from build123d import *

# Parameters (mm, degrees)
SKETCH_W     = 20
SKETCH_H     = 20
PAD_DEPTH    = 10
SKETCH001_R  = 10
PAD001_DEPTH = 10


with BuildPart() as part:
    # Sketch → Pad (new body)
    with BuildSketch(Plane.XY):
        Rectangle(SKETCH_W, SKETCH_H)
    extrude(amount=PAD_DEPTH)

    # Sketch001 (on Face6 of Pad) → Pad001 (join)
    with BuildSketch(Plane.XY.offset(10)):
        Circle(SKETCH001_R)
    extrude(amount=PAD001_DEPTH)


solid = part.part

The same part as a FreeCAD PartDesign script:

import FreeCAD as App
import Part
import Sketcher

V = App.Vector
Q = App.Units.Quantity

doc = App.newDocument("Part")
body = doc.addObject("PartDesign::Body", "Body")

# Sketch on XY plane
sketch1 = body.newObject("Sketcher::SketchObject", "Sketch")
sketch1.AttachmentSupport = (doc.getObject("XY_Plane"), [""])
sketch1.MapMode = "FlatFace"
sketch1.addGeometry([
    Part.LineSegment(V(-10, 10, 0), V(-10, -10, 0)),
    Part.LineSegment(V(-10, -10, 0), V(10, -10, 0)),
    Part.LineSegment(V(10, -10, 0), V(10, 10, 0)),
    Part.LineSegment(V(10, 10, 0), V(-10, 10, 0)),
], False)
sketch1.addConstraint([
    Sketcher.Constraint("Coincident", 0, 2, 1, 1),
    Sketcher.Constraint("Coincident", 1, 2, 2, 1),
    Sketcher.Constraint("Coincident", 2, 2, 3, 1),
    Sketcher.Constraint("Coincident", 3, 2, 0, 1),
    Sketcher.Constraint("Vertical", 0),
    Sketcher.Constraint("Horizontal", 1),
    Sketcher.Constraint("Vertical", 2),
    Sketcher.Constraint("Horizontal", 3),
    Sketcher.Constraint("Symmetric", 0, 2, 2, 2, -1, 1),
    Sketcher.Constraint("Equal", 3, 0),
    Sketcher.Constraint("DistanceX", 1, 1, 1, 2, Q("20 mm")),
])
pad1 = body.newObject("PartDesign::Pad", "Pad")
pad1.Profile = sketch1
pad1.Length = 10

# Sketch on XY plane
sketch2 = body.newObject("Sketcher::SketchObject", "Sketch001")
sketch2.AttachmentSupport = (doc.getObject("XY_Plane"), [""])
sketch2.MapMode = "FlatFace"
sketch2.AttachmentOffset = App.Placement(V(0, 0, 10), App.Rotation())
sketch2.addGeometry(Part.Circle(V(0, 0, 0), V(0, 0, 1), 10), False)
sketch2.addConstraint([
    Sketcher.Constraint("Coincident", 0, 3, -1, 1),
    Sketcher.Constraint("Diameter", 0, Q("20 mm")),
])
pad2 = body.newObject("PartDesign::Pad", "Pad001")
pad2.Profile = sketch2
pad2.Length = 10

doc.recompute()
